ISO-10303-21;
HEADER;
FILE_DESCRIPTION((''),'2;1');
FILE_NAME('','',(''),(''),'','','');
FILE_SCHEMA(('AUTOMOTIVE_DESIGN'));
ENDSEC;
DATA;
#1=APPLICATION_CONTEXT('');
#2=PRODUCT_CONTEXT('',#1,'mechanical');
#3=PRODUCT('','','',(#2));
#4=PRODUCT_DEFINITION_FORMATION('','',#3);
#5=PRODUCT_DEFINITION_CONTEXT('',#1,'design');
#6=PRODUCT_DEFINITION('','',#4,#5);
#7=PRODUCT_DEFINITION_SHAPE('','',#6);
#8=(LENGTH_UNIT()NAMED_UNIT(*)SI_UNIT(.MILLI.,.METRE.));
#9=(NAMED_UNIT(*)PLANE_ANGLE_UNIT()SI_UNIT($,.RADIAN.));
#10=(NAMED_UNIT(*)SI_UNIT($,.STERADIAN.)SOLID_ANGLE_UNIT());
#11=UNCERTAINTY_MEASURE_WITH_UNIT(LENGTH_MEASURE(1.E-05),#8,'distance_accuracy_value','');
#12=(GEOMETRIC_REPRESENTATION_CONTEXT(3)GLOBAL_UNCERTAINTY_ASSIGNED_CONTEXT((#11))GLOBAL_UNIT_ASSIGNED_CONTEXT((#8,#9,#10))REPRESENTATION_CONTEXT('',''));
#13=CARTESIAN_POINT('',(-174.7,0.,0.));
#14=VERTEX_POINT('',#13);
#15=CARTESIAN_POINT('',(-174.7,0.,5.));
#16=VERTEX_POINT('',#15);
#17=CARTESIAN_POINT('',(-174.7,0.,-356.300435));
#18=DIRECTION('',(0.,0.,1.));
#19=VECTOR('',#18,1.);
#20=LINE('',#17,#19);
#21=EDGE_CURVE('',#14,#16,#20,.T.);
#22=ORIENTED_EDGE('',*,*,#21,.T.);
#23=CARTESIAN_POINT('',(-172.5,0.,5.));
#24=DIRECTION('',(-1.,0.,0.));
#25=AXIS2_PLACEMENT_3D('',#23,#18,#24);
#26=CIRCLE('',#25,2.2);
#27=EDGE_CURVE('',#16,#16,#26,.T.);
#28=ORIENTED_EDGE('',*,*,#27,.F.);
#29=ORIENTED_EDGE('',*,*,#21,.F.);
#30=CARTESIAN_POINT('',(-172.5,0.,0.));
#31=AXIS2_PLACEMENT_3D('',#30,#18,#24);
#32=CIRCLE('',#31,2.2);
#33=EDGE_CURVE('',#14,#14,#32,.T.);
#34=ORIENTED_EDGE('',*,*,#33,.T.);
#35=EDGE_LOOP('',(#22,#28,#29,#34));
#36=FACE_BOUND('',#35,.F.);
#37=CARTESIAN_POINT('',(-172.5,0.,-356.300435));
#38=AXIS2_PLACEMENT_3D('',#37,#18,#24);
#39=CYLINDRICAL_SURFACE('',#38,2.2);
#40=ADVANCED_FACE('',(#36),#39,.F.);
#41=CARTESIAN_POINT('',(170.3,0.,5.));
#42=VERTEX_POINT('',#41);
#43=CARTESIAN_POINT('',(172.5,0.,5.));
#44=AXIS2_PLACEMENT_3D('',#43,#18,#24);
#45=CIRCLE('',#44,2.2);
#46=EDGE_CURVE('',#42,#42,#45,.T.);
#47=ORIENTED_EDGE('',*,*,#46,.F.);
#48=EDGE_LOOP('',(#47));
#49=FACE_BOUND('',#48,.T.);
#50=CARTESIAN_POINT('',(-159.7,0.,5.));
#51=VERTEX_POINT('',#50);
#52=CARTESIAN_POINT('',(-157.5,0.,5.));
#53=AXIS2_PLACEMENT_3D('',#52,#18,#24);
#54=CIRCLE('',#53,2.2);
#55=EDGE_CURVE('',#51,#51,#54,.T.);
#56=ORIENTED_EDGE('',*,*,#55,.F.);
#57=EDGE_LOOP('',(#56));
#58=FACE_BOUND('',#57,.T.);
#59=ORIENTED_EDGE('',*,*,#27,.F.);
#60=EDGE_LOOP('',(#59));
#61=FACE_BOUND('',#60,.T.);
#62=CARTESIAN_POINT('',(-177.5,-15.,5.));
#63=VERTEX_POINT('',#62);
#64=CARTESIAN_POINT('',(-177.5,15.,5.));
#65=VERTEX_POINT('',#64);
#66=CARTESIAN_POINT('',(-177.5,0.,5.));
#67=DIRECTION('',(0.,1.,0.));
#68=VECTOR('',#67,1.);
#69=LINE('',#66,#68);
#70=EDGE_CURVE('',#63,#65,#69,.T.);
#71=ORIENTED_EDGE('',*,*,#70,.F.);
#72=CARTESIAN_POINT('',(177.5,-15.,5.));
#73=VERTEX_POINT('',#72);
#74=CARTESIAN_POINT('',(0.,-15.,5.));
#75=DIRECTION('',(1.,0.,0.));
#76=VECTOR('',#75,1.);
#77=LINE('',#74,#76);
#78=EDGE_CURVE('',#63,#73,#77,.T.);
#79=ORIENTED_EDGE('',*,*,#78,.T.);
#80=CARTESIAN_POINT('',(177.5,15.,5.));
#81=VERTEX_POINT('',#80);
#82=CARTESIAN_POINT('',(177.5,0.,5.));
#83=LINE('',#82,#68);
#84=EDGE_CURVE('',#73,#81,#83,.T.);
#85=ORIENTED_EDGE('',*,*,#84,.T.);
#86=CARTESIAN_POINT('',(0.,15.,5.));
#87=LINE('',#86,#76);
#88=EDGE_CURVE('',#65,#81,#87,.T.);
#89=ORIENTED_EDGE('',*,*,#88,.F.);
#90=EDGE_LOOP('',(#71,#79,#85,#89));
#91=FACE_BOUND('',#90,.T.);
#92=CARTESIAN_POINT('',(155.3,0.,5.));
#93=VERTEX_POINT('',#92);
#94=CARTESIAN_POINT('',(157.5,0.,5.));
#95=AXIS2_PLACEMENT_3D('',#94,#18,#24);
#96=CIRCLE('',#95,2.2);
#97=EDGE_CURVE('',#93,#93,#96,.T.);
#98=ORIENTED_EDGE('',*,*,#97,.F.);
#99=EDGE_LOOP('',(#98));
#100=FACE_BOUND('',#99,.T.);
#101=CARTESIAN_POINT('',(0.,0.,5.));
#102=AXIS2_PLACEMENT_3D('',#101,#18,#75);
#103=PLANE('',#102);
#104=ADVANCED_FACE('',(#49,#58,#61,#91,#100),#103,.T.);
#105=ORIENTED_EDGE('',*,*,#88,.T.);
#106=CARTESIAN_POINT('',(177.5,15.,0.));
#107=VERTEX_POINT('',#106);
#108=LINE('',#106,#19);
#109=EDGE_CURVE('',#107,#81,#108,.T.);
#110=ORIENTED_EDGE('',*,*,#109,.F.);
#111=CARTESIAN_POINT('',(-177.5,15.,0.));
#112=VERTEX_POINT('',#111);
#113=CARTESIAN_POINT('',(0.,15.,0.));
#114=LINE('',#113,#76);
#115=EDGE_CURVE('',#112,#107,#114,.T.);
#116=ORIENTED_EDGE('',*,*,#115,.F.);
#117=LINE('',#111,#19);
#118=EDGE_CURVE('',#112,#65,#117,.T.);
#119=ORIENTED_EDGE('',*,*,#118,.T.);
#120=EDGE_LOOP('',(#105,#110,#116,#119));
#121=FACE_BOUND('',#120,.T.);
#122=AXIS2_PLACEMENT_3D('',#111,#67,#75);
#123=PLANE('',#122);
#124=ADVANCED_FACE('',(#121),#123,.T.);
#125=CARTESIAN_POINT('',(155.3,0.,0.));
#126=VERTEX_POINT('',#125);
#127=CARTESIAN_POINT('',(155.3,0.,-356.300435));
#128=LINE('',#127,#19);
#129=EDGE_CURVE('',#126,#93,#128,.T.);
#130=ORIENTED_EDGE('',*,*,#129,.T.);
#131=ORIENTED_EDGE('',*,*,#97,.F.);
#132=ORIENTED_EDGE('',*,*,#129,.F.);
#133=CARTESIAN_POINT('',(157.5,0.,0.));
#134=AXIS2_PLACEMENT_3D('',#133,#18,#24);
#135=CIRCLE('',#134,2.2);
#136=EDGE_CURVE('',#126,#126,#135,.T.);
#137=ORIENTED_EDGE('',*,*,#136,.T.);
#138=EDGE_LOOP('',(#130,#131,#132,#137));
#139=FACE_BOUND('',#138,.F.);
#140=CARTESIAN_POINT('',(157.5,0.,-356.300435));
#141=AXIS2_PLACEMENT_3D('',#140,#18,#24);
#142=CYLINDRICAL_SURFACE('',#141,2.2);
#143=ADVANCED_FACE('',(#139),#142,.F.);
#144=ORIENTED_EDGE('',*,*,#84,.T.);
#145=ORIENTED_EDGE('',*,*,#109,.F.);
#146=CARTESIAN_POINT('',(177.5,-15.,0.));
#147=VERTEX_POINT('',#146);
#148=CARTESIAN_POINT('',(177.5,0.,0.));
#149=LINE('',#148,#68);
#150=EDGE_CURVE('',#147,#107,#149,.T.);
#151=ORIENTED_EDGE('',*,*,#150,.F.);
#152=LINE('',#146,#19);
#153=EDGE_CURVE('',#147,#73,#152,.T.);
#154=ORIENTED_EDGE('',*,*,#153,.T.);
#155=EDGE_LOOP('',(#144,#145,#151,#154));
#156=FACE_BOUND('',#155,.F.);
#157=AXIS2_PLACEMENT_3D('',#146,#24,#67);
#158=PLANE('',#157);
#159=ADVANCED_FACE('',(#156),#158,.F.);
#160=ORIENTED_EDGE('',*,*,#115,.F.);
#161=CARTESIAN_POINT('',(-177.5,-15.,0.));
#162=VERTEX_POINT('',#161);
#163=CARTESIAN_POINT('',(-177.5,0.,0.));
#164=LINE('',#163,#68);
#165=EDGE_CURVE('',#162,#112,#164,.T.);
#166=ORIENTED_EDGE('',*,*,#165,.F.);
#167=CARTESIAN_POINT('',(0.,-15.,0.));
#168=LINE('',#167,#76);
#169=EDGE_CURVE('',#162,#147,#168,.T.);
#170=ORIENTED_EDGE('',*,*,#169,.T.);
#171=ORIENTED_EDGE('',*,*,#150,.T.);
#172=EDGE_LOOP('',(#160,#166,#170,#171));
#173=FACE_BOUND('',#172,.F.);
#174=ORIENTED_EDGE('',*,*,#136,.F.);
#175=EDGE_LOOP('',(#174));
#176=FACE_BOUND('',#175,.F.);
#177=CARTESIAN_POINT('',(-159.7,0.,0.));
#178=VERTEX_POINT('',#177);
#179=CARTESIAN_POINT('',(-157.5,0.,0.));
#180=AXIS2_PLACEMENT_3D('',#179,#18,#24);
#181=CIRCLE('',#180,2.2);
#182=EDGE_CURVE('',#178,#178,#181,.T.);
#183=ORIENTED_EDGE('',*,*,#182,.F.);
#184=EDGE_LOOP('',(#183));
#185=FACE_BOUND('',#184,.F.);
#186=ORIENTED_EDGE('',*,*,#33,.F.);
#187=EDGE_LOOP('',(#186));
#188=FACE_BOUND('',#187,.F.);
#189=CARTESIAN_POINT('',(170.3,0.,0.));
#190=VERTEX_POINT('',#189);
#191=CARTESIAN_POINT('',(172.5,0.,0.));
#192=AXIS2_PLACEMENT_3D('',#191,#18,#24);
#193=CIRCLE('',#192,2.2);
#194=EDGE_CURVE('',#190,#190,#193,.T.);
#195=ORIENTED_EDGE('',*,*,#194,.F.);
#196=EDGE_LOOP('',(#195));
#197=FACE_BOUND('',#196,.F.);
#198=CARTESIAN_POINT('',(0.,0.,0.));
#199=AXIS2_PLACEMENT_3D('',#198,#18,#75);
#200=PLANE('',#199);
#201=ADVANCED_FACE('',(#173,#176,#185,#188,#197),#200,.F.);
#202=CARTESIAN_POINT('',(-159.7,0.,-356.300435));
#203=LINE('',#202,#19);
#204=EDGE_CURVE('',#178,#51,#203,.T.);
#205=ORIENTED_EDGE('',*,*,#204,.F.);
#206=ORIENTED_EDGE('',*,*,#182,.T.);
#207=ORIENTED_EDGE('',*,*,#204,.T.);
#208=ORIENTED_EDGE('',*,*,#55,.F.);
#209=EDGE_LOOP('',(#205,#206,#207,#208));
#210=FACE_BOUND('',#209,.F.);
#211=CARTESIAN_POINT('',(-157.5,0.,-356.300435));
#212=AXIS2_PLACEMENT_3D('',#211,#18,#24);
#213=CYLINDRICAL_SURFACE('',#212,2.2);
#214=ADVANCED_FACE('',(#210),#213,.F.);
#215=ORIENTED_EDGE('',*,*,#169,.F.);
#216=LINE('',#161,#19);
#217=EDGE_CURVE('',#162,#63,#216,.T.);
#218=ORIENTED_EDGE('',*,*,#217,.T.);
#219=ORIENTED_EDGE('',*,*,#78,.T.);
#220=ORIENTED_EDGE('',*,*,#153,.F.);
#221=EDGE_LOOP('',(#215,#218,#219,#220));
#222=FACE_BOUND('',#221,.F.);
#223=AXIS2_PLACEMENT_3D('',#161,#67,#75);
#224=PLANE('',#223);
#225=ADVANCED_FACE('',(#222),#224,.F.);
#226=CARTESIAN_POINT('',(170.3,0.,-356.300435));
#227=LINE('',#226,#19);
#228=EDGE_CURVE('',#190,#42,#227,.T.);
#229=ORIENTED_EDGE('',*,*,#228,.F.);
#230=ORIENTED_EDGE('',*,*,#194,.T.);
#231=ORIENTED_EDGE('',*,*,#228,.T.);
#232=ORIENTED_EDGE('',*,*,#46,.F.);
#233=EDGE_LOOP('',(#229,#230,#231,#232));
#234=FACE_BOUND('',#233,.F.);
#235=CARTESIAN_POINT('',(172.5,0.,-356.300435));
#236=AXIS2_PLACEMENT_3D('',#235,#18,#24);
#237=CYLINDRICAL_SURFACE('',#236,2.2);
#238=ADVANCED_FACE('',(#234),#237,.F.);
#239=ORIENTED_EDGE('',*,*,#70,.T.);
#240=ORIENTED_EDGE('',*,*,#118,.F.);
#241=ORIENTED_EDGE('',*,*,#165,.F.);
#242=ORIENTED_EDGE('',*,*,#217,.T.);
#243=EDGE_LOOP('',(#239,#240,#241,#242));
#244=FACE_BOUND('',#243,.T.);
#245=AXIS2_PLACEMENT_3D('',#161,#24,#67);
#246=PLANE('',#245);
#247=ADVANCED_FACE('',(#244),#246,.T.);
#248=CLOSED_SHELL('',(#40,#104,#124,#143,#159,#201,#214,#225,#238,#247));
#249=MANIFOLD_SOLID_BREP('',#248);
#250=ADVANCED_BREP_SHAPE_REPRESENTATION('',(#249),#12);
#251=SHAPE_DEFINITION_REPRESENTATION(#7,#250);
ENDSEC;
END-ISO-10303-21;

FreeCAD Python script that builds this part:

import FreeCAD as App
import Part
import Sketcher

V = App.Vector
Q = App.Units.Quantity

doc = App.newDocument("Part")
body = doc.addObject("PartDesign::Body", "Body")

# Sketch on XY plane
sketch1 = doc.addObject("Sketcher::SketchObject", "Sketch")
body.addObject(sketch1)
sketch1.AttachmentSupport = (doc.XY_Plane, [""])
sketch1.MapMode = "FlatFace"
sketch1.addGeometry([
    Part.LineSegment(V(-177.5, 15, 0), V(-177.5, -15, 0)),
    Part.LineSegment(V(-177.5, -15, 0), V(177.5, -15, 0)),
    Part.LineSegment(V(177.5, -15, 0), V(177.5, 15, 0)),
    Part.LineSegment(V(177.5, 15, 0), V(-177.5, 15, 0)),
], False)
sketch1.addConstraint([
    Sketcher.Constraint("Coincident", 0, 2, 1, 1),
    Sketcher.Constraint("Coincident", 1, 2, 2, 1),
    Sketcher.Constraint("Coincident", 2, 2, 3, 1),
    Sketcher.Constraint("Coincident", 3, 2, 0, 1),
    Sketcher.Constraint("Vertical", 0),
    Sketcher.Constraint("Horizontal", 1),
    Sketcher.Constraint("Vertical", 2),
    Sketcher.Constraint("Horizontal", 3),
    Sketcher.Constraint("Symmetric", 0, 2, 2, 2, -1, 1),
    Sketcher.Constraint("DistanceX", 1, 1, 1, 2, Q("355 mm")),
    Sketcher.Constraint("DistanceY", 0, 2, 0, 1, Q("30 mm")),
])
pad1 = doc.addObject("PartDesign::Pad", "Pad")
body.addObject(pad1)
pad1.Profile = sketch1
pad1.Length = 5

# Sketch on XY plane
sketch2 = doc.addObject("Sketcher::SketchObject", "Sketch001")
body.addObject(sketch2)
sketch2.AttachmentSupport = (doc.XY_Plane, [""])
sketch2.MapMode = "FlatFace"
sketch2.addGeometry([
    Part.Circle(V(157.5, 0, 0), V(0, 0, 1), 2.2),
    Part.Circle(V(172.5, 0, 0), V(0, 0, 1), 2.2),
    Part.Circle(V(-157.5, 0, 0), V(0, 0, 1), 2.2),
    Part.Circle(V(-172.5, 0, 0), V(0, 0, 1), 2.2),
], False)
sketch2.addConstraint([
    Sketcher.Constraint("Equal", 0, 1),
    Sketcher.Constraint("Equal", 1, 2),
    Sketcher.Constraint("Equal", 2, 3),
    Sketcher.Constraint("Symmetric", 0, 3, 2, 3, -1, 1),
    Sketcher.Constraint("Symmetric", 1, 3, 3, 3, -1, 1),
    Sketcher.Constraint("PointOnObject", 0, 3, -1),
    Sketcher.Constraint("PointOnObject", 1, 3, -1),
    Sketcher.Constraint("Diameter", 0, Q("4.4 mm")),
    Sketcher.Constraint("DistanceX", 0, 3, 1, 3, Q("15 mm")),
    Sketcher.Constraint("DistanceX", 2, 3, 0, 3, Q("315 mm")),
])
doc.recompute()
hole = doc.addObject("PartDesign::Hole", "Hole")
body.addObject(hole)
hole.Profile = sketch2
hole.ThreadType = "None"
hole.Diameter = 4.4
hole.DepthType = "ThroughAll"
hole.Reversed = True

doc.recompute()
